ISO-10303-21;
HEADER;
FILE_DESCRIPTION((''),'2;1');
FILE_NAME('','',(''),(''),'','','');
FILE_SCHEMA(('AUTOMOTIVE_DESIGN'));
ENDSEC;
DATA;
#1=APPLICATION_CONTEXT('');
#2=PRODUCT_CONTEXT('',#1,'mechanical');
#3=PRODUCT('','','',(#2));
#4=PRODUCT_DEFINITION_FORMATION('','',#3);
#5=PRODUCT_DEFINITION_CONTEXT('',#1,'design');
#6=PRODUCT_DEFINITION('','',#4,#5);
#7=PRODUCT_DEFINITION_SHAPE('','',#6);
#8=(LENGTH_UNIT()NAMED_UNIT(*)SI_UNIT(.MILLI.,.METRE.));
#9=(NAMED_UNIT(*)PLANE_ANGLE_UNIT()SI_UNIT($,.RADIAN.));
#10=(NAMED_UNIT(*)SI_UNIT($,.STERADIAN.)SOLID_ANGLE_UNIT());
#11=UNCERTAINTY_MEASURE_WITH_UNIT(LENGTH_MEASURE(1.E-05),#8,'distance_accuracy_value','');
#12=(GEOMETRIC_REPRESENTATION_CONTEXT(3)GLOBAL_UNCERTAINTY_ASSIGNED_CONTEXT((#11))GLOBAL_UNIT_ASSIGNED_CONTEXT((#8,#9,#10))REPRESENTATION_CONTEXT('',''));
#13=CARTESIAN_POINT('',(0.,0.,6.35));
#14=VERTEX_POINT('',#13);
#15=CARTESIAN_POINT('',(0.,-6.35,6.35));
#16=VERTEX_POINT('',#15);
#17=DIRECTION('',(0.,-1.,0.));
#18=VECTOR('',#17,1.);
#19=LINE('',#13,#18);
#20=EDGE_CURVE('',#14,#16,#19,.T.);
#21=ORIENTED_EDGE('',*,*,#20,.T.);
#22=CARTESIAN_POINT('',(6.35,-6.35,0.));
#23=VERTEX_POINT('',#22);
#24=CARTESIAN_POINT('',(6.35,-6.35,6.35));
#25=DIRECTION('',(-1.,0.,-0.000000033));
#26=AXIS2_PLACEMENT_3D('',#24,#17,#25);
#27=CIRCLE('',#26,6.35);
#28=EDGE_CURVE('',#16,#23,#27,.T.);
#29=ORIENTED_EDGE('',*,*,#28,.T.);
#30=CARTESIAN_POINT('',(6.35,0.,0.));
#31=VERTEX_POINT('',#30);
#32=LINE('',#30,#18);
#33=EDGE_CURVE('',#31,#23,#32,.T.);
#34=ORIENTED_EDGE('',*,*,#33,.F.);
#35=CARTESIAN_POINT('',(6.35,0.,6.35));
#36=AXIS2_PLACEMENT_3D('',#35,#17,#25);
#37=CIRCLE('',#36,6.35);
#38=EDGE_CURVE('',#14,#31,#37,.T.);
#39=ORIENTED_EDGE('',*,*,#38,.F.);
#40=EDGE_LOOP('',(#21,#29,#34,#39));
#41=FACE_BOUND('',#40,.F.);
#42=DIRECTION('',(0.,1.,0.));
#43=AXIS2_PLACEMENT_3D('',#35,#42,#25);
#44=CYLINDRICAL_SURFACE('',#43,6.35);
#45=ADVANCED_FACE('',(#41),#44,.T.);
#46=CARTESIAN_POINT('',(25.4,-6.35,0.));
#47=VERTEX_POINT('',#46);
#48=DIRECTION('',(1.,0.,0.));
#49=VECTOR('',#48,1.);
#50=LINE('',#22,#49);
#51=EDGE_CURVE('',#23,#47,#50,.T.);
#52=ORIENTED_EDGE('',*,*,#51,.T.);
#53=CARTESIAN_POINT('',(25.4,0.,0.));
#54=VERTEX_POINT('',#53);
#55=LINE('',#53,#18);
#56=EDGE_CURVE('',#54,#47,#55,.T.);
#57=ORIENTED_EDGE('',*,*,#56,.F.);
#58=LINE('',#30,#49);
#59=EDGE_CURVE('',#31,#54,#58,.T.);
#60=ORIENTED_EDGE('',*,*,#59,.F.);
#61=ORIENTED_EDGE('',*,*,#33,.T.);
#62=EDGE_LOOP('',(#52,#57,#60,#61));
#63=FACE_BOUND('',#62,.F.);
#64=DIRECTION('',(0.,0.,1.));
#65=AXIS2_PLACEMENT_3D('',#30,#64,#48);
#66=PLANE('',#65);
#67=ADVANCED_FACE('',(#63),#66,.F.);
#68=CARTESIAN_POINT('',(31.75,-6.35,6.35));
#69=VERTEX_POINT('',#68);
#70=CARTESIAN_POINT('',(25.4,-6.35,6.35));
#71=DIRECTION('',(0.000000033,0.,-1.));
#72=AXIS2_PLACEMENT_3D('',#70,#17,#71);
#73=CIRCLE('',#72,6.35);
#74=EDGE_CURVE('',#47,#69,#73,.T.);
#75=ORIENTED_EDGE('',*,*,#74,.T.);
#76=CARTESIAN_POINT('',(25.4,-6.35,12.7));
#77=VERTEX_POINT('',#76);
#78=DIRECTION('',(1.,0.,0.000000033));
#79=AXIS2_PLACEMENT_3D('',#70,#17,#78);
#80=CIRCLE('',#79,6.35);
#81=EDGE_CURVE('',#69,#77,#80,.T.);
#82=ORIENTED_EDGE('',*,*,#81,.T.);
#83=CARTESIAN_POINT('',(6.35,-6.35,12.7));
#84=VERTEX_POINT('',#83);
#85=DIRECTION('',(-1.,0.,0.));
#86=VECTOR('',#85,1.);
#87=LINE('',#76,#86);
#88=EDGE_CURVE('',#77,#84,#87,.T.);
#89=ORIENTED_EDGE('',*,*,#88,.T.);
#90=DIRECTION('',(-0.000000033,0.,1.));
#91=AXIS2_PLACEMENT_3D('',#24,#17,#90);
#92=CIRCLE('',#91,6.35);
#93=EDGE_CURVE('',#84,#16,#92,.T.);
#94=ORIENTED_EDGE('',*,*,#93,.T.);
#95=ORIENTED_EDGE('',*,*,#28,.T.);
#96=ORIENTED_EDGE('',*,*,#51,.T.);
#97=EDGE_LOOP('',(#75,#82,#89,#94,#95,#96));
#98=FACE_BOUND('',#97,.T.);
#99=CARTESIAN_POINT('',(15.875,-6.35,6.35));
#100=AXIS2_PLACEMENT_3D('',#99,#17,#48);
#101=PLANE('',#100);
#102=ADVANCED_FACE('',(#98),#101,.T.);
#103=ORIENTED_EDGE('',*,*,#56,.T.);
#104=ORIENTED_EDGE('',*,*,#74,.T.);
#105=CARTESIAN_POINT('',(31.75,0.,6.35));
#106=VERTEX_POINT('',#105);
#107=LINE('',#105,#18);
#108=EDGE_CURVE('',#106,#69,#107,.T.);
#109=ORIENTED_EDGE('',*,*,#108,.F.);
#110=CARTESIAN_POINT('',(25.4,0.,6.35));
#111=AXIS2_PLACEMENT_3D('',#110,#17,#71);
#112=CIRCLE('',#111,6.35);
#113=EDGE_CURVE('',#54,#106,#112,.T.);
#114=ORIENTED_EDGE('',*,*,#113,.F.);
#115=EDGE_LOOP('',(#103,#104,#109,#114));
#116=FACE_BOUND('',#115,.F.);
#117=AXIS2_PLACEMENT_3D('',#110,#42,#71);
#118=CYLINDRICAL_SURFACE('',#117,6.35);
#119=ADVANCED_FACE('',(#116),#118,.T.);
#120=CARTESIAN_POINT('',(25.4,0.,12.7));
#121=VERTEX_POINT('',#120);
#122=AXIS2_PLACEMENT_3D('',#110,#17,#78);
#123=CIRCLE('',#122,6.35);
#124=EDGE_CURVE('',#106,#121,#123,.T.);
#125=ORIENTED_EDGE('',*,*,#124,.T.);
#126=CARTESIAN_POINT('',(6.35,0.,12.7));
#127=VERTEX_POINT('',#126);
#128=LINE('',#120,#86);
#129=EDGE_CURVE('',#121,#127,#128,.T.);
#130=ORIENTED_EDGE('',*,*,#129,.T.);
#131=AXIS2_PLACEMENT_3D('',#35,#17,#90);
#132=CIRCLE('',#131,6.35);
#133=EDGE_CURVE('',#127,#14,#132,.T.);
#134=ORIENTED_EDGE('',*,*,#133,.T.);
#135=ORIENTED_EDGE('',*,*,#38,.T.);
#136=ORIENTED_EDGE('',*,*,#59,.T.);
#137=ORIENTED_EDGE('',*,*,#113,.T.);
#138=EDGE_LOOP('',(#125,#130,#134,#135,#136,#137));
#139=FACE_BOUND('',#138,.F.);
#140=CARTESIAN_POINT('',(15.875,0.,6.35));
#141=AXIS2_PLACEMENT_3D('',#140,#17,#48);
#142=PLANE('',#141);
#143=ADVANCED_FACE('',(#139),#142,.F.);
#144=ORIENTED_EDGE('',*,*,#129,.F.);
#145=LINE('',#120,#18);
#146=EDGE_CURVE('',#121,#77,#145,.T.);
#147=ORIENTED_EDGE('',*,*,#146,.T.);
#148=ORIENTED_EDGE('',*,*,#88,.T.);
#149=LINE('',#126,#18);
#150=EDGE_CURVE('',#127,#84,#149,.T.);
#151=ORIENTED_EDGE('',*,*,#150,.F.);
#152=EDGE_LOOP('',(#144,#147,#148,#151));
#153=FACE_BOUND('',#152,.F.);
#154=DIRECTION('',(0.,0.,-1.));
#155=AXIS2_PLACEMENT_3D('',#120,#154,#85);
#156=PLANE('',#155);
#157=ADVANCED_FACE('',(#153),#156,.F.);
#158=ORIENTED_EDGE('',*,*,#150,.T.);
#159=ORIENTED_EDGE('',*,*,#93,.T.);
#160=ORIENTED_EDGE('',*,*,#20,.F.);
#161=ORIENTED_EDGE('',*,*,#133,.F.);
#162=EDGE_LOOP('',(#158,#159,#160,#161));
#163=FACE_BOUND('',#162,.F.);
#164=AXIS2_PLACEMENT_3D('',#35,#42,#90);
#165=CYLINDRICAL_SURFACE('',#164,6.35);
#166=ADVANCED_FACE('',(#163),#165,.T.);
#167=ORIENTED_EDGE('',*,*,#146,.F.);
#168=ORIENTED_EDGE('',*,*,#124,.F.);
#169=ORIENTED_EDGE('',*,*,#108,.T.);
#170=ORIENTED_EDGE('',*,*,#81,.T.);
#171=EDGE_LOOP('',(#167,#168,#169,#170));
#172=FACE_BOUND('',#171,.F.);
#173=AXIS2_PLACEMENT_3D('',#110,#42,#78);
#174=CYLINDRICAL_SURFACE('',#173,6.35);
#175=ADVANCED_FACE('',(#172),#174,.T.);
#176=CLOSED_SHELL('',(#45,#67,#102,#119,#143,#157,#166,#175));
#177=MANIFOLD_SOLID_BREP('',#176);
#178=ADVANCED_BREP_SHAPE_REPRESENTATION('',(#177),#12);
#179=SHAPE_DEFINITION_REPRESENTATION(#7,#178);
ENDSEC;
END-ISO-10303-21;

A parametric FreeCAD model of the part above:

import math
import FreeCAD as App
import Part
import Sketcher
Q = App.Units.Quantity

doc = App.newDocument("Part")
body = doc.addObject("PartDesign::Body", "Body")

# Sketch on XZ plane
sketch1 = body.newObject("Sketcher::SketchObject", "Sketch")
sketch1.AttachmentSupport = (doc.getObject("XZ_Plane"), [""])
sketch1.MapMode = "FlatFace"
sketch1.addGeometry([
    Part.ArcOfCircle(Part.Circle(App.Vector(6, 6, 0), App.Vector(0, 0, 1), 6), math.radians(-180), math.radians(-90)),  # 0
    Part.LineSegment(App.Vector(6, 0, 0), App.Vector(25, 0, 0)),  # 1
    Part.ArcOfCircle(Part.Circle(App.Vector(25, 6, 0), App.Vector(0, 0, 1), 6), math.radians(-90), math.radians(0)),  # 2
    Part.ArcOfCircle(Part.Circle(App.Vector(25, 6, 0), App.Vector(0, 0, 1), 6), math.radians(0), math.radians(90)),  # 3
    Part.LineSegment(App.Vector(25, 13, 0), App.Vector(6, 13, 0)),  # 4
    Part.ArcOfCircle(Part.Circle(App.Vector(6, 6, 0), App.Vector(0, 0, 1), 6), math.radians(90), math.radians(180)),  # 5
], False)
sketch1.addConstraint([
    Sketcher.Constraint("Tangent", 0, 2, 1, 1),
    Sketcher.Constraint("Tangent", 1, 2, 2, 1),
    Sketcher.Constraint("Tangent", 2, 2, 3, 1),
    Sketcher.Constraint("Tangent", 3, 2, 4, 1),
    Sketcher.Constraint("Tangent", 4, 2, 5, 1),
    Sketcher.Constraint("Tangent", 5, 2, 0, 1),
    Sketcher.Constraint("Horizontal", 1),
    Sketcher.Constraint("Horizontal", 4),
    Sketcher.Constraint("Equal", 0, 2),
    Sketcher.Constraint("Equal", 2, 3),
    Sketcher.Constraint("PointOnObject", 0, 2, -1),
    Sketcher.Constraint("PointOnObject", 5, 2, -2),
    Sketcher.Constraint("Horizontal", 5, 3, 2, 2),
    Sketcher.Constraint("Horizontal", 2, 2, 5, 2),
    Sketcher.Constraint("Radius", 0, Q("0.25 in")),
    Sketcher.Constraint("DistanceX", -1, 1, 2, 3, Q("1 in")),
])
pad1 = body.newObject("PartDesign::Pad", "Pad")
pad1.Profile = sketch1
pad1.Length = Q("0.25 in")

doc.recompute()
